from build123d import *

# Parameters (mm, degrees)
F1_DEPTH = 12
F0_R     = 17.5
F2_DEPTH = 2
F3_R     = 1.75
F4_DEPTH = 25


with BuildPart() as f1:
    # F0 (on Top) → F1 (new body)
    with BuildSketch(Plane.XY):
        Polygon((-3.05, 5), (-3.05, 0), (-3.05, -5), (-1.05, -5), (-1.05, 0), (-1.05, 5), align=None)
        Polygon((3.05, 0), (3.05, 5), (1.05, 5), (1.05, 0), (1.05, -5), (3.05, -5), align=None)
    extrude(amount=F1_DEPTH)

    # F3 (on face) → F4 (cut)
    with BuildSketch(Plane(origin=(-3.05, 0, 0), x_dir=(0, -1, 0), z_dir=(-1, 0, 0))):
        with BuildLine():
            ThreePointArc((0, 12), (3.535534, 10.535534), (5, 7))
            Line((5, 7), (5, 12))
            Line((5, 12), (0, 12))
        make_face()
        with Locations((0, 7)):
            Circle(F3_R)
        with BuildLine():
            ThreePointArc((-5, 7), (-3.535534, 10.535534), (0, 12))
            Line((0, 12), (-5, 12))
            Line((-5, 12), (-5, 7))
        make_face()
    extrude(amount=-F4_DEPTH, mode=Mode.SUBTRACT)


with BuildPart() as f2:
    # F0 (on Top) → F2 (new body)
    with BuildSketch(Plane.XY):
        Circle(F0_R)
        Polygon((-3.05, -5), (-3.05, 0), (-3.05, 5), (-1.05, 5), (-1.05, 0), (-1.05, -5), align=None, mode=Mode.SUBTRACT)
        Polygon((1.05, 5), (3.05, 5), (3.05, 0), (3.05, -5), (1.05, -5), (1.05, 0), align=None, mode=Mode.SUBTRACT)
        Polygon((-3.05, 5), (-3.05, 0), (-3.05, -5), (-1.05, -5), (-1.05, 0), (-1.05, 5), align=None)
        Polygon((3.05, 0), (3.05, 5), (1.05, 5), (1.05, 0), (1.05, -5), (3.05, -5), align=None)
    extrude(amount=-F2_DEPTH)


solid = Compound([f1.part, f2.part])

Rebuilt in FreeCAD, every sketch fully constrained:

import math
import FreeCAD as App
import Part
import Sketcher
from FreeCAD import Vector


def add_polygon(sketch, points):
    """Adds a closed chain of lines whose ends are joined by coincident constraints."""
    first, n = sketch.GeometryCount, len(points)
    for a, b in zip(points, points[1:] + points[:1]):
        sketch.addGeometry(Part.LineSegment(App.Vector(*a, 0), App.Vector(*b, 0)), False)
    for i in range(n):
        sketch.addConstraint(Sketcher.Constraint("Coincident", first + i, 2, first + (i + 1) % n, 1))

doc = App.newDocument("Part")
params = doc.addObject("Spreadsheet::Sheet", "Params")
for row, (alias, value) in enumerate([
    ("sketch1_width", "2 mm"),
    ("sketch1_height", "10 mm"),
    ("pad1_length", "12 mm"),
    ("sketch2_radius", "5 mm"),
    ("sketch2_diameter", "3.5 mm"),
    ("pocket1_length", "25 mm"),
    ("sketch3_diameter", "35 mm"),
    ("pad2_length", "2 mm"),
], start=1):
    params.set(f"A{row}", alias)
    params.set(f"B{row}", "=" + value)
    params.setAlias(f"B{row}", alias)

body = doc.addObject("PartDesign::Body", "Body")
body.AllowCompound = True

sketch1 = doc.addObject("Sketcher::SketchObject", "Sketch")
body.addObject(sketch1)
sketch1.AttachmentSupport = (doc.XY_Plane, [""])
sketch1.MapMode = "FlatFace"
add_polygon(sketch1, [(-3.05, 5), (-3.05, -5), (-1.05, -5), (-1.05, 5)])
add_polygon(sketch1, [(3.05, 5), (1.05, 5), (1.05, -5), (3.05, -5)])
sketch1.addConstraint([
    Sketcher.Constraint("Vertical", 0),
    Sketcher.Constraint("Horizontal", 1),
    Sketcher.Constraint("Vertical", 2),
    Sketcher.Constraint("Horizontal", 3),
    Sketcher.Constraint("Horizontal", 4),
    Sketcher.Constraint("Vertical", 5),
    Sketcher.Constraint("Horizontal", 6),
    Sketcher.Constraint("Vertical", 7),
    Sketcher.Constraint("Symmetric", 1, 2, 4, 2, -1, 1),
    Sketcher.Constraint("Symmetric", 3, 2, 6, 2, -1, 1),
    Sketcher.Constraint("Horizontal", 3, 2, 4, 2),
    Sketcher.Constraint("DistanceX", 1, 1, 1, 2, 2.0),
    Sketcher.Constraint("DistanceY", 0, 2, 0, 1, 10.0),
    Sketcher.Constraint("DistanceX", 2, 2, 4, 2, 2.1),
])
sketch1.setExpression("Constraints[19]", "Params.sketch1_width")
sketch1.setExpression("Constraints[20]", "Params.sketch1_height")
pad1 = doc.addObject("PartDesign::Pad", "Pad")
body.addObject(pad1)
pad1.Profile = sketch1
pad1.setExpression("Length", "Params.pad1_length")

sketch2 = doc.addObject("Sketcher::SketchObject", "Sketch001")
body.addObject(sketch2)
sketch2.AttachmentSupport = (doc.YZ_Plane, [""])
sketch2.MapMode = "FlatFace"
sketch2.AttachmentOffset = App.Placement(Vector(0, 0, -3.05), App.Rotation())
sketch2.addGeometry([
    Part.ArcOfCircle(Part.Circle(Vector(0, 7, 0), Vector(0, 0, 1), 5), math.radians(89.999996), math.radians(180.000004)),
    Part.LineSegment(Vector(-5, 7, 0), Vector(-5, 12, 0)),
    Part.LineSegment(Vector(-5, 12, 0), Vector(0, 12, 0)),
    Part.Circle(Vector(0, 7, 0), Vector(0, 0, 1), 1.75),
    Part.ArcOfCircle(Part.Circle(Vector(0, 7, 0), Vector(0, 0, 1), 5), math.radians(-0.000004), math.radians(90.000004)),
    Part.LineSegment(Vector(0, 12, 0), Vector(5, 12, 0)),
    Part.LineSegment(Vector(5, 12, 0), Vector(5, 7, 0)),
], False)
sketch2.addConstraint([
    Sketcher.Constraint("Tangent", 0, 2, 1, 1),
    Sketcher.Constraint("Coincident", 1, 2, 2, 1),
    Sketcher.Constraint("Tangent", 2, 2, 0, 1),
    Sketcher.Constraint("Tangent", 4, 2, 5, 1),
    Sketcher.Constraint("Coincident", 5, 2, 6, 1),
    Sketcher.Constraint("Tangent", 6, 2, 4, 1),
    Sketcher.Constraint("Vertical", 1),
    Sketcher.Constraint("Horizontal", 2),
    Sketcher.Constraint("Horizontal", 5),
    Sketcher.Constraint("Vertical", 6),
    Sketcher.Constraint("Coincident", 3, 3, 0, 3),
    Sketcher.Constraint("Coincident", 4, 3, 0, 3),
    Sketcher.Constraint("Equal", 0, 4),
    Sketcher.Constraint("PointOnObject", 0, 3, -2),
    Sketcher.Constraint("Radius", 0, 5.0),
    Sketcher.Constraint("Diameter", 3, 3.5),
    Sketcher.Constraint("DistanceY", -1, 1, 0, 3, 7.0),
])
sketch2.setExpression("Constraints[14]", "Params.sketch2_radius")
sketch2.setExpression("Constraints[15]", "Params.sketch2_diameter")
pocket1 = doc.addObject("PartDesign::Pocket", "Pocket")
body.addObject(pocket1)
pocket1.Profile = sketch2
pocket1.setExpression("Length", "Params.pocket1_length")
pocket1.Reversed = True
body2 = doc.addObject("PartDesign::Body", "Body001")

sketch3 = doc.addObject("Sketcher::SketchObject", "Sketch002")
body2.addObject(sketch3)
sketch3.AttachmentSupport = (doc.getObject("XY_Plane001"), [""])
sketch3.MapMode = "FlatFace"
sketch3.addGeometry(Part.Circle(Vector(0, 0, 0), Vector(0, 0, 1), 17.5), False)
sketch3.addConstraint([
    Sketcher.Constraint("Coincident", 0, 3, -1, 1),
    Sketcher.Constraint("Diameter", 0, 35.0),
])
sketch3.setExpression("Constraints[1]", "Params.sketch3_diameter")
pad2 = doc.addObject("PartDesign::Pad", "Pad001")
body2.addObject(pad2)
pad2.Profile = sketch3
pad2.setExpression("Length", "Params.pad2_length")
pad2.Reversed = True

doc.recompute()
